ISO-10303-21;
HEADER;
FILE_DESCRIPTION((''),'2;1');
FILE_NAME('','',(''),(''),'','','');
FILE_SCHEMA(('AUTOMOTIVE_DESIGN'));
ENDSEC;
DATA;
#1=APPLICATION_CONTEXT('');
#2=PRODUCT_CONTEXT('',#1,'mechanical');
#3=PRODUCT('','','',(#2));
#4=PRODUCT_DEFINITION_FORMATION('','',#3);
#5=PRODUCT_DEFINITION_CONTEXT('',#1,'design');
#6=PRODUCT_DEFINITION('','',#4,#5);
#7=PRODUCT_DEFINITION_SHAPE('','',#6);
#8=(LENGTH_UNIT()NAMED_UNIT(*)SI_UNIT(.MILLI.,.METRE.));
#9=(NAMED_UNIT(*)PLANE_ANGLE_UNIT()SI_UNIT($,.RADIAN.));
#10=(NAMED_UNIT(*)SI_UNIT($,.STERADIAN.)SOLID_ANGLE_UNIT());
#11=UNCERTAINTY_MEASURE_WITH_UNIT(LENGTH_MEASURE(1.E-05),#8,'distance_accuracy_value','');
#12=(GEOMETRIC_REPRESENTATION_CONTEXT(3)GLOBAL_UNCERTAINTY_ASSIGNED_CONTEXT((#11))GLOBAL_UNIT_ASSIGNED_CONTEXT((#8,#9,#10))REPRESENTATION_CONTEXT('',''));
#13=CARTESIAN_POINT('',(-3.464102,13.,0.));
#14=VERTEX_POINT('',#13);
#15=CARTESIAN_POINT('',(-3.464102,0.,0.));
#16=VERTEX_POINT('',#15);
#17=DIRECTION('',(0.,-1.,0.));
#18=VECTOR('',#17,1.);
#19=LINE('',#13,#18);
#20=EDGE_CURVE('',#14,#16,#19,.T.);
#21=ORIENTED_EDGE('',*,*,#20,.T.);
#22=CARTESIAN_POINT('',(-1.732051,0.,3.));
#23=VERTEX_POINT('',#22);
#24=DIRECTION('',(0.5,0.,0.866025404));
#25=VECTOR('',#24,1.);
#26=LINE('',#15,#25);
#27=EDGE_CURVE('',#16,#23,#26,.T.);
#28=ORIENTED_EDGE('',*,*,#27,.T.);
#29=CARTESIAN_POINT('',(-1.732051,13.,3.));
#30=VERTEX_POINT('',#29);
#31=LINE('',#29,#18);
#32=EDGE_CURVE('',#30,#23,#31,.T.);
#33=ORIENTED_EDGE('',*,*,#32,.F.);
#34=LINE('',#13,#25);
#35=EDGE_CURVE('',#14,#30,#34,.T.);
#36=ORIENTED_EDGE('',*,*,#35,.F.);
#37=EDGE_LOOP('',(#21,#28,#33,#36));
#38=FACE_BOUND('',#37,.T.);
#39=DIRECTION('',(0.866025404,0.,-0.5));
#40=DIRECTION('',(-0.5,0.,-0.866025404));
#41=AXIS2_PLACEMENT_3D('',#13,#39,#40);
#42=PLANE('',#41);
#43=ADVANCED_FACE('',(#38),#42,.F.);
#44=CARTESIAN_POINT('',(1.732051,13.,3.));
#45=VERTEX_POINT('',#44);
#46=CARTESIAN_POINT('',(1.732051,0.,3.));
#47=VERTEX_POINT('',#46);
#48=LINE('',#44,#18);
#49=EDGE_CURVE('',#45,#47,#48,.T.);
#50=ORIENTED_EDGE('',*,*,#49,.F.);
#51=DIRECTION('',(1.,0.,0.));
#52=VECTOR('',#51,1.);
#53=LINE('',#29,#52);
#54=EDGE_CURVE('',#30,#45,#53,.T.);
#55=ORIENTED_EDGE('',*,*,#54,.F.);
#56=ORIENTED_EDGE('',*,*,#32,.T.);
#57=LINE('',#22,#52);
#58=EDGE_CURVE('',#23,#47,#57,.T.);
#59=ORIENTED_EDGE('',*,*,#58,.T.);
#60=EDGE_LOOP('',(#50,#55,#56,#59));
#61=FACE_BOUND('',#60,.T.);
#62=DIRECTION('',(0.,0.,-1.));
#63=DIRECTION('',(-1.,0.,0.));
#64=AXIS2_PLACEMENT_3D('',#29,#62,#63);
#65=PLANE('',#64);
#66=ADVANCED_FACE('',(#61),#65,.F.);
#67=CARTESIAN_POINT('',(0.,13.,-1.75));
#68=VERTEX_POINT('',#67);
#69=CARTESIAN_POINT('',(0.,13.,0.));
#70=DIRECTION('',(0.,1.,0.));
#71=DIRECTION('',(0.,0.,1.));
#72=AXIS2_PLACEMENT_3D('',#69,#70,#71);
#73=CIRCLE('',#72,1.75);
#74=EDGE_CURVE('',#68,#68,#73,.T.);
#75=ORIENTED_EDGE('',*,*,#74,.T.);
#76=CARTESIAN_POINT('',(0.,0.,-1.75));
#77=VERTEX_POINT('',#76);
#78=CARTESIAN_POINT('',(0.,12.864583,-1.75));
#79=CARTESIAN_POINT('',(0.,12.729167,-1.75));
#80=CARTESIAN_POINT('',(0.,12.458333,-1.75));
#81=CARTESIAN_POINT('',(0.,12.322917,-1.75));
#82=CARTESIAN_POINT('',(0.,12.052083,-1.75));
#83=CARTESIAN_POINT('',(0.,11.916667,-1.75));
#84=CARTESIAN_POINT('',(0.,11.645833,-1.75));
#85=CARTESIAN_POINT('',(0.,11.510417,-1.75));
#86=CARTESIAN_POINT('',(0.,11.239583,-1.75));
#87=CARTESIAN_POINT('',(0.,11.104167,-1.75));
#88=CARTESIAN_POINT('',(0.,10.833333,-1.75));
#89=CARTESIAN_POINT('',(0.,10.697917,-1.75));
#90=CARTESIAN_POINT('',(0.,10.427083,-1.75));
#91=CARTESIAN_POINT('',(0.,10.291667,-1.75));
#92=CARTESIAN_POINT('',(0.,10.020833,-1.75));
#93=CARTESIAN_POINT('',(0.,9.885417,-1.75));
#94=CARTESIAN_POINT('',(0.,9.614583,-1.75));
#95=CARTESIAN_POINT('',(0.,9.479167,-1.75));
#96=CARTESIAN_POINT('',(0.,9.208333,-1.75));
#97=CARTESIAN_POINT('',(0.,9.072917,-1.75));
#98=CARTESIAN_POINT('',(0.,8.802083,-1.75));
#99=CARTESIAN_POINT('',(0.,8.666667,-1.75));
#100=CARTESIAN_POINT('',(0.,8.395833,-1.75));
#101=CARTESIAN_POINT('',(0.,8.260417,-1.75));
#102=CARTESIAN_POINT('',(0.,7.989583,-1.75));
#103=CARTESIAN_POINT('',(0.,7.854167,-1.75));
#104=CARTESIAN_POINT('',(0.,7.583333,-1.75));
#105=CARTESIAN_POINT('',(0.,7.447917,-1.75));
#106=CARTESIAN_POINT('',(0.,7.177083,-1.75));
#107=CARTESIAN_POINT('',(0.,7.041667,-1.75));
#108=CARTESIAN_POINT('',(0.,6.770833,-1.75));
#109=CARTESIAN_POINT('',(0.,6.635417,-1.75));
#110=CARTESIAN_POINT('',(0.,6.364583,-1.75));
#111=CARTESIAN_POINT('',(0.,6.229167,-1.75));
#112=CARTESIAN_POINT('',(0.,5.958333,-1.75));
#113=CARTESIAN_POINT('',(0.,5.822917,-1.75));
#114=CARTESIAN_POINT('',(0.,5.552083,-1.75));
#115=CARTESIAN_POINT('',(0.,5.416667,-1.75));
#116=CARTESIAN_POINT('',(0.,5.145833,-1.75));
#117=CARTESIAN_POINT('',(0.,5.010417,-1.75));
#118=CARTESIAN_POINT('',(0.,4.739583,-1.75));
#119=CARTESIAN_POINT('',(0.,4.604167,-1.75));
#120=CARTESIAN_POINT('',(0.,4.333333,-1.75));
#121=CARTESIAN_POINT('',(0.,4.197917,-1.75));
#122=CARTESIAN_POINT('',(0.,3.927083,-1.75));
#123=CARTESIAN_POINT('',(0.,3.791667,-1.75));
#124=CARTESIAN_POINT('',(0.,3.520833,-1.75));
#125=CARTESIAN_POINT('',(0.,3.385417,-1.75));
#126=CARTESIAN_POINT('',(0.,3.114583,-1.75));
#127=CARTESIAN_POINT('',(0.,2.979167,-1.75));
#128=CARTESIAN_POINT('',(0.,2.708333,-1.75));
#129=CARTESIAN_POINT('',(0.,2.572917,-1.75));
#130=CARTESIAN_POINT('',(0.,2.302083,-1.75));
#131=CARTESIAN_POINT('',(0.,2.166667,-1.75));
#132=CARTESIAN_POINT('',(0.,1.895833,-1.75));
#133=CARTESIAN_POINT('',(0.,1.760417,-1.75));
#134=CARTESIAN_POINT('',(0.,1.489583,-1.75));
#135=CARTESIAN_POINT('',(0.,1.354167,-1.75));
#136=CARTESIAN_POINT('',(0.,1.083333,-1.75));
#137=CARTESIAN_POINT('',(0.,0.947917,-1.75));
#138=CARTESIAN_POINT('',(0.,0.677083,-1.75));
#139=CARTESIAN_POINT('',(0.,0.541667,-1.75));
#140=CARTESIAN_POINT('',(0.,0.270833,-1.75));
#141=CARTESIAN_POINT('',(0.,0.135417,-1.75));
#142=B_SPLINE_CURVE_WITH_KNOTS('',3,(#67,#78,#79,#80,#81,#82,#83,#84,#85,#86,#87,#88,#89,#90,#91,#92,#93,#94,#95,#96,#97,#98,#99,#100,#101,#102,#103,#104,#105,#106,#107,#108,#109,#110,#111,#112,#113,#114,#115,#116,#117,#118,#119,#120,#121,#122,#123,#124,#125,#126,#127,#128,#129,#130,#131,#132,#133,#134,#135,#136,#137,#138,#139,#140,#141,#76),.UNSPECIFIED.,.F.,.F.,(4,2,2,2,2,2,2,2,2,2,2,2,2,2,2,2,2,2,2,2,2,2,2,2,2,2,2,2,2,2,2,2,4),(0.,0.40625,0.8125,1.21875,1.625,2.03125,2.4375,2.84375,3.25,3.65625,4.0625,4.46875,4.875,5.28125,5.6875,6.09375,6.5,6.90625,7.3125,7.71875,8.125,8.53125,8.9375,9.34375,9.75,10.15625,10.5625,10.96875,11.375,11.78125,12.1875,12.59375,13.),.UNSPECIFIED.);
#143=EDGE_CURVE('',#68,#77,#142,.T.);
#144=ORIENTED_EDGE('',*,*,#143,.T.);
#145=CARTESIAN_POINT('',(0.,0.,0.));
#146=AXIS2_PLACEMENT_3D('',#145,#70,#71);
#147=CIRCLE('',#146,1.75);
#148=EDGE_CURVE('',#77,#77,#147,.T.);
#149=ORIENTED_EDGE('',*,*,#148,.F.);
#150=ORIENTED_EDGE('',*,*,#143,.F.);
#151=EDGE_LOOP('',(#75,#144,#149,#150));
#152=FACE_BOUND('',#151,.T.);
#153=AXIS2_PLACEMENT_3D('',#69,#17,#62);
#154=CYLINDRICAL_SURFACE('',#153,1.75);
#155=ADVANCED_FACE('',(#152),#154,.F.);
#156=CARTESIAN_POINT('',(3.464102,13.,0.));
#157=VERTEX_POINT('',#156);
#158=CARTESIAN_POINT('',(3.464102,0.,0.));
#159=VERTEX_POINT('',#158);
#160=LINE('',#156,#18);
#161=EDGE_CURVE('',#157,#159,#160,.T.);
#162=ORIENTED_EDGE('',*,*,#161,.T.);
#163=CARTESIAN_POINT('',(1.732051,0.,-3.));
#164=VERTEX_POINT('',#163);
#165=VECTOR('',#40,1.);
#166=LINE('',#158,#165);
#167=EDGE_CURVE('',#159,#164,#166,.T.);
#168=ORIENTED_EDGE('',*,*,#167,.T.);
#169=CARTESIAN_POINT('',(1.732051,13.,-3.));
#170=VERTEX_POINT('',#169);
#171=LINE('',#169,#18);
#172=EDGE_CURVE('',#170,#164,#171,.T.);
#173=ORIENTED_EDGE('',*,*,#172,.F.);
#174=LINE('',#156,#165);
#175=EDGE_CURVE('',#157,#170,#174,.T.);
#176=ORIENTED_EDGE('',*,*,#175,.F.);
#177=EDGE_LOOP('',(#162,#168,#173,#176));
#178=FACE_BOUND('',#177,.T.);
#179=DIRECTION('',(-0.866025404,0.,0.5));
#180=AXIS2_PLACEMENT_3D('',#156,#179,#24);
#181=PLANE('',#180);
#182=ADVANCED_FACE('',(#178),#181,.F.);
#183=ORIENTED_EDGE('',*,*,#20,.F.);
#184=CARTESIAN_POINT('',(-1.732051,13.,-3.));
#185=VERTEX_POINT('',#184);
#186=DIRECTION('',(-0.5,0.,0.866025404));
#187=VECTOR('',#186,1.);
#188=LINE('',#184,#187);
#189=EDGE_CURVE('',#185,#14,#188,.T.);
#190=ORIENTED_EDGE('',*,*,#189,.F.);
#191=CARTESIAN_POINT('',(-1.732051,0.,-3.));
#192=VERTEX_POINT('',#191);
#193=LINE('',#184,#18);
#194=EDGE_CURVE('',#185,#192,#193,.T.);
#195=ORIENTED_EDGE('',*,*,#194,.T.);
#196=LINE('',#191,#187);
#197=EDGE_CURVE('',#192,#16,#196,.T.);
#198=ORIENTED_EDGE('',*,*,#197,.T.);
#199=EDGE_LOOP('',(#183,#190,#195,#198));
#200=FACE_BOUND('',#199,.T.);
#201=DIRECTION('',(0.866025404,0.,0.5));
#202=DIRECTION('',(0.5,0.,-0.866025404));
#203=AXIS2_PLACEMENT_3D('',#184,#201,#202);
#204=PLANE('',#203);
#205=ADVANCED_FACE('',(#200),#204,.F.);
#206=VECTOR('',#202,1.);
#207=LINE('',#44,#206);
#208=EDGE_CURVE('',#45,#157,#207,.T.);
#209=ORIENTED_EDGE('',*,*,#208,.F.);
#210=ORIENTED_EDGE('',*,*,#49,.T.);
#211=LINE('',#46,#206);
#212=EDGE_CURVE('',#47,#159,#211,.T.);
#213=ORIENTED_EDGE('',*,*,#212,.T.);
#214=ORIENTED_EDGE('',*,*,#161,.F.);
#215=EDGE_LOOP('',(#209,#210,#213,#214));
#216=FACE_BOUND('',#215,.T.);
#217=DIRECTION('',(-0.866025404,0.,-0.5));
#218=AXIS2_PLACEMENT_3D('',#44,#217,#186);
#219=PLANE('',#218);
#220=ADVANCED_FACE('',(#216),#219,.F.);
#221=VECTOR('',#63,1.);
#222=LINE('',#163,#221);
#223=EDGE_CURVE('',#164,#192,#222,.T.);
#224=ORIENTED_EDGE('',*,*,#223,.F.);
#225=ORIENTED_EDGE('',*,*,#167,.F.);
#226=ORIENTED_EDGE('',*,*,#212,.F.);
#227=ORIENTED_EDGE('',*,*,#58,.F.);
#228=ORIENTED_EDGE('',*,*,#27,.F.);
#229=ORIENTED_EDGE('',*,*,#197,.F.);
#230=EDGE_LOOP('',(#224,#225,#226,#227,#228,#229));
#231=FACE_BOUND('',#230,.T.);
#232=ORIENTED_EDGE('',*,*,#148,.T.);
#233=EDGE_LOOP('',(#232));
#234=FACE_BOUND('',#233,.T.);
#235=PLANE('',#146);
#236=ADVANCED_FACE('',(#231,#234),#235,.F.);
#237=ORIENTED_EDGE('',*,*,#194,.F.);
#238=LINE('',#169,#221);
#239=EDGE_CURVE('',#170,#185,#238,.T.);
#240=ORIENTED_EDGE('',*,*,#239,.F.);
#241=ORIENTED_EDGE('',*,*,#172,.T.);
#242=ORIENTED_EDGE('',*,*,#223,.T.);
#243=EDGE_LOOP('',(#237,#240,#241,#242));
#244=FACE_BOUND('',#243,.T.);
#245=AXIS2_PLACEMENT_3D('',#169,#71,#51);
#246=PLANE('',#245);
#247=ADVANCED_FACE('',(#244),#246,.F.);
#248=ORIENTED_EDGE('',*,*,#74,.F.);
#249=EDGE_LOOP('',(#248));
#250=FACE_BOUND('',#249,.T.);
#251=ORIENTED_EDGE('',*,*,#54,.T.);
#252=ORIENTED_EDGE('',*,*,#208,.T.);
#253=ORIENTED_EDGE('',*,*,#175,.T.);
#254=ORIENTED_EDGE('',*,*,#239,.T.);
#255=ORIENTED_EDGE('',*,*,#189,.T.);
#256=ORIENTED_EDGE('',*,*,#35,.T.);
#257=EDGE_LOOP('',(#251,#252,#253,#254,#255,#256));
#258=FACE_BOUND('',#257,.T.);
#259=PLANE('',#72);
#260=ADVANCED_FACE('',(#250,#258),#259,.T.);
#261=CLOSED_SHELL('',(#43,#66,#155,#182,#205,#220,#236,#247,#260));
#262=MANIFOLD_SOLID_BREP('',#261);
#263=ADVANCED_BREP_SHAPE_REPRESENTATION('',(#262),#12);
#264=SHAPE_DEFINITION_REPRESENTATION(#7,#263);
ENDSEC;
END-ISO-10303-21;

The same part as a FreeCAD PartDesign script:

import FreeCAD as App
import Part
import Sketcher

V = App.Vector
Q = App.Units.Quantity


def add_polygon(sketch, points):
    """Adds a closed chain of lines whose ends are joined by coincident constraints."""
    first, n = sketch.GeometryCount, len(points)
    for a, b in zip(points, points[1:] + points[:1]):
        sketch.addGeometry(Part.LineSegment(App.Vector(*a, 0), App.Vector(*b, 0)), False)
    for i in range(n):
        sketch.addConstraint(Sketcher.Constraint("Coincident", first + i, 2, first + (i + 1) % n, 1))

doc = App.newDocument("Part")
body = doc.addObject("PartDesign::Body", "Body")

sketch1 = body.newObject("Sketcher::SketchObject", "Sketch")
sketch1.AttachmentSupport = (doc.getObject("XZ_Plane"), [""])
sketch1.MapMode = "FlatFace"
add_polygon(sketch1, [(3.464102, 0), (1.732051, -3), (-1.732051, -3), (-3.464102, 0), (-1.732051, 3), (1.732051, 3)])
sketch1.addGeometry(Part.Circle(V(0, 0, 0), V(0, 0, 1), 1.75), False)
sketch1.addConstraint(Sketcher.Constraint("Horizontal", 1))
sketch1.addConstraint(Sketcher.Constraint("Horizontal", 4))
sketch1.addConstraint(Sketcher.Constraint("Coincident", 6, 3, -1, 1))
sketch1.addConstraint(Sketcher.Constraint("Symmetric", 0, 2, 3, 2, -1, 1))
sketch1.addConstraint(Sketcher.Constraint("Symmetric", 2, 2, 5, 2, -1, 1))
sketch1.addConstraint(Sketcher.Constraint("PointOnObject", 2, 2, -1))
sketch1.addConstraint(Sketcher.Constraint("Parallel", 2, 5))
sketch1.addConstraint(Sketcher.Constraint("Vertical", 1, 2, 3, 2))
sketch1.addConstraint(Sketcher.Constraint("Diameter", 6, Q("3.5 mm")))
sketch1.addConstraint(Sketcher.Constraint("Angle", 0, Q("-120 deg")))
sketch1.addConstraint(Sketcher.Constraint("DistanceY", 0, 2, -1, 1, Q("3 mm")))
sketch1.addConstraint(Sketcher.Constraint("DistanceX", 1, 2, 1, 1, Q("3.464102 mm")))
pad1 = body.newObject("PartDesign::Pad", "Pad")
pad1.Profile = sketch1
pad1.Length = 13
pad1.Reversed = True

doc.recompute()
